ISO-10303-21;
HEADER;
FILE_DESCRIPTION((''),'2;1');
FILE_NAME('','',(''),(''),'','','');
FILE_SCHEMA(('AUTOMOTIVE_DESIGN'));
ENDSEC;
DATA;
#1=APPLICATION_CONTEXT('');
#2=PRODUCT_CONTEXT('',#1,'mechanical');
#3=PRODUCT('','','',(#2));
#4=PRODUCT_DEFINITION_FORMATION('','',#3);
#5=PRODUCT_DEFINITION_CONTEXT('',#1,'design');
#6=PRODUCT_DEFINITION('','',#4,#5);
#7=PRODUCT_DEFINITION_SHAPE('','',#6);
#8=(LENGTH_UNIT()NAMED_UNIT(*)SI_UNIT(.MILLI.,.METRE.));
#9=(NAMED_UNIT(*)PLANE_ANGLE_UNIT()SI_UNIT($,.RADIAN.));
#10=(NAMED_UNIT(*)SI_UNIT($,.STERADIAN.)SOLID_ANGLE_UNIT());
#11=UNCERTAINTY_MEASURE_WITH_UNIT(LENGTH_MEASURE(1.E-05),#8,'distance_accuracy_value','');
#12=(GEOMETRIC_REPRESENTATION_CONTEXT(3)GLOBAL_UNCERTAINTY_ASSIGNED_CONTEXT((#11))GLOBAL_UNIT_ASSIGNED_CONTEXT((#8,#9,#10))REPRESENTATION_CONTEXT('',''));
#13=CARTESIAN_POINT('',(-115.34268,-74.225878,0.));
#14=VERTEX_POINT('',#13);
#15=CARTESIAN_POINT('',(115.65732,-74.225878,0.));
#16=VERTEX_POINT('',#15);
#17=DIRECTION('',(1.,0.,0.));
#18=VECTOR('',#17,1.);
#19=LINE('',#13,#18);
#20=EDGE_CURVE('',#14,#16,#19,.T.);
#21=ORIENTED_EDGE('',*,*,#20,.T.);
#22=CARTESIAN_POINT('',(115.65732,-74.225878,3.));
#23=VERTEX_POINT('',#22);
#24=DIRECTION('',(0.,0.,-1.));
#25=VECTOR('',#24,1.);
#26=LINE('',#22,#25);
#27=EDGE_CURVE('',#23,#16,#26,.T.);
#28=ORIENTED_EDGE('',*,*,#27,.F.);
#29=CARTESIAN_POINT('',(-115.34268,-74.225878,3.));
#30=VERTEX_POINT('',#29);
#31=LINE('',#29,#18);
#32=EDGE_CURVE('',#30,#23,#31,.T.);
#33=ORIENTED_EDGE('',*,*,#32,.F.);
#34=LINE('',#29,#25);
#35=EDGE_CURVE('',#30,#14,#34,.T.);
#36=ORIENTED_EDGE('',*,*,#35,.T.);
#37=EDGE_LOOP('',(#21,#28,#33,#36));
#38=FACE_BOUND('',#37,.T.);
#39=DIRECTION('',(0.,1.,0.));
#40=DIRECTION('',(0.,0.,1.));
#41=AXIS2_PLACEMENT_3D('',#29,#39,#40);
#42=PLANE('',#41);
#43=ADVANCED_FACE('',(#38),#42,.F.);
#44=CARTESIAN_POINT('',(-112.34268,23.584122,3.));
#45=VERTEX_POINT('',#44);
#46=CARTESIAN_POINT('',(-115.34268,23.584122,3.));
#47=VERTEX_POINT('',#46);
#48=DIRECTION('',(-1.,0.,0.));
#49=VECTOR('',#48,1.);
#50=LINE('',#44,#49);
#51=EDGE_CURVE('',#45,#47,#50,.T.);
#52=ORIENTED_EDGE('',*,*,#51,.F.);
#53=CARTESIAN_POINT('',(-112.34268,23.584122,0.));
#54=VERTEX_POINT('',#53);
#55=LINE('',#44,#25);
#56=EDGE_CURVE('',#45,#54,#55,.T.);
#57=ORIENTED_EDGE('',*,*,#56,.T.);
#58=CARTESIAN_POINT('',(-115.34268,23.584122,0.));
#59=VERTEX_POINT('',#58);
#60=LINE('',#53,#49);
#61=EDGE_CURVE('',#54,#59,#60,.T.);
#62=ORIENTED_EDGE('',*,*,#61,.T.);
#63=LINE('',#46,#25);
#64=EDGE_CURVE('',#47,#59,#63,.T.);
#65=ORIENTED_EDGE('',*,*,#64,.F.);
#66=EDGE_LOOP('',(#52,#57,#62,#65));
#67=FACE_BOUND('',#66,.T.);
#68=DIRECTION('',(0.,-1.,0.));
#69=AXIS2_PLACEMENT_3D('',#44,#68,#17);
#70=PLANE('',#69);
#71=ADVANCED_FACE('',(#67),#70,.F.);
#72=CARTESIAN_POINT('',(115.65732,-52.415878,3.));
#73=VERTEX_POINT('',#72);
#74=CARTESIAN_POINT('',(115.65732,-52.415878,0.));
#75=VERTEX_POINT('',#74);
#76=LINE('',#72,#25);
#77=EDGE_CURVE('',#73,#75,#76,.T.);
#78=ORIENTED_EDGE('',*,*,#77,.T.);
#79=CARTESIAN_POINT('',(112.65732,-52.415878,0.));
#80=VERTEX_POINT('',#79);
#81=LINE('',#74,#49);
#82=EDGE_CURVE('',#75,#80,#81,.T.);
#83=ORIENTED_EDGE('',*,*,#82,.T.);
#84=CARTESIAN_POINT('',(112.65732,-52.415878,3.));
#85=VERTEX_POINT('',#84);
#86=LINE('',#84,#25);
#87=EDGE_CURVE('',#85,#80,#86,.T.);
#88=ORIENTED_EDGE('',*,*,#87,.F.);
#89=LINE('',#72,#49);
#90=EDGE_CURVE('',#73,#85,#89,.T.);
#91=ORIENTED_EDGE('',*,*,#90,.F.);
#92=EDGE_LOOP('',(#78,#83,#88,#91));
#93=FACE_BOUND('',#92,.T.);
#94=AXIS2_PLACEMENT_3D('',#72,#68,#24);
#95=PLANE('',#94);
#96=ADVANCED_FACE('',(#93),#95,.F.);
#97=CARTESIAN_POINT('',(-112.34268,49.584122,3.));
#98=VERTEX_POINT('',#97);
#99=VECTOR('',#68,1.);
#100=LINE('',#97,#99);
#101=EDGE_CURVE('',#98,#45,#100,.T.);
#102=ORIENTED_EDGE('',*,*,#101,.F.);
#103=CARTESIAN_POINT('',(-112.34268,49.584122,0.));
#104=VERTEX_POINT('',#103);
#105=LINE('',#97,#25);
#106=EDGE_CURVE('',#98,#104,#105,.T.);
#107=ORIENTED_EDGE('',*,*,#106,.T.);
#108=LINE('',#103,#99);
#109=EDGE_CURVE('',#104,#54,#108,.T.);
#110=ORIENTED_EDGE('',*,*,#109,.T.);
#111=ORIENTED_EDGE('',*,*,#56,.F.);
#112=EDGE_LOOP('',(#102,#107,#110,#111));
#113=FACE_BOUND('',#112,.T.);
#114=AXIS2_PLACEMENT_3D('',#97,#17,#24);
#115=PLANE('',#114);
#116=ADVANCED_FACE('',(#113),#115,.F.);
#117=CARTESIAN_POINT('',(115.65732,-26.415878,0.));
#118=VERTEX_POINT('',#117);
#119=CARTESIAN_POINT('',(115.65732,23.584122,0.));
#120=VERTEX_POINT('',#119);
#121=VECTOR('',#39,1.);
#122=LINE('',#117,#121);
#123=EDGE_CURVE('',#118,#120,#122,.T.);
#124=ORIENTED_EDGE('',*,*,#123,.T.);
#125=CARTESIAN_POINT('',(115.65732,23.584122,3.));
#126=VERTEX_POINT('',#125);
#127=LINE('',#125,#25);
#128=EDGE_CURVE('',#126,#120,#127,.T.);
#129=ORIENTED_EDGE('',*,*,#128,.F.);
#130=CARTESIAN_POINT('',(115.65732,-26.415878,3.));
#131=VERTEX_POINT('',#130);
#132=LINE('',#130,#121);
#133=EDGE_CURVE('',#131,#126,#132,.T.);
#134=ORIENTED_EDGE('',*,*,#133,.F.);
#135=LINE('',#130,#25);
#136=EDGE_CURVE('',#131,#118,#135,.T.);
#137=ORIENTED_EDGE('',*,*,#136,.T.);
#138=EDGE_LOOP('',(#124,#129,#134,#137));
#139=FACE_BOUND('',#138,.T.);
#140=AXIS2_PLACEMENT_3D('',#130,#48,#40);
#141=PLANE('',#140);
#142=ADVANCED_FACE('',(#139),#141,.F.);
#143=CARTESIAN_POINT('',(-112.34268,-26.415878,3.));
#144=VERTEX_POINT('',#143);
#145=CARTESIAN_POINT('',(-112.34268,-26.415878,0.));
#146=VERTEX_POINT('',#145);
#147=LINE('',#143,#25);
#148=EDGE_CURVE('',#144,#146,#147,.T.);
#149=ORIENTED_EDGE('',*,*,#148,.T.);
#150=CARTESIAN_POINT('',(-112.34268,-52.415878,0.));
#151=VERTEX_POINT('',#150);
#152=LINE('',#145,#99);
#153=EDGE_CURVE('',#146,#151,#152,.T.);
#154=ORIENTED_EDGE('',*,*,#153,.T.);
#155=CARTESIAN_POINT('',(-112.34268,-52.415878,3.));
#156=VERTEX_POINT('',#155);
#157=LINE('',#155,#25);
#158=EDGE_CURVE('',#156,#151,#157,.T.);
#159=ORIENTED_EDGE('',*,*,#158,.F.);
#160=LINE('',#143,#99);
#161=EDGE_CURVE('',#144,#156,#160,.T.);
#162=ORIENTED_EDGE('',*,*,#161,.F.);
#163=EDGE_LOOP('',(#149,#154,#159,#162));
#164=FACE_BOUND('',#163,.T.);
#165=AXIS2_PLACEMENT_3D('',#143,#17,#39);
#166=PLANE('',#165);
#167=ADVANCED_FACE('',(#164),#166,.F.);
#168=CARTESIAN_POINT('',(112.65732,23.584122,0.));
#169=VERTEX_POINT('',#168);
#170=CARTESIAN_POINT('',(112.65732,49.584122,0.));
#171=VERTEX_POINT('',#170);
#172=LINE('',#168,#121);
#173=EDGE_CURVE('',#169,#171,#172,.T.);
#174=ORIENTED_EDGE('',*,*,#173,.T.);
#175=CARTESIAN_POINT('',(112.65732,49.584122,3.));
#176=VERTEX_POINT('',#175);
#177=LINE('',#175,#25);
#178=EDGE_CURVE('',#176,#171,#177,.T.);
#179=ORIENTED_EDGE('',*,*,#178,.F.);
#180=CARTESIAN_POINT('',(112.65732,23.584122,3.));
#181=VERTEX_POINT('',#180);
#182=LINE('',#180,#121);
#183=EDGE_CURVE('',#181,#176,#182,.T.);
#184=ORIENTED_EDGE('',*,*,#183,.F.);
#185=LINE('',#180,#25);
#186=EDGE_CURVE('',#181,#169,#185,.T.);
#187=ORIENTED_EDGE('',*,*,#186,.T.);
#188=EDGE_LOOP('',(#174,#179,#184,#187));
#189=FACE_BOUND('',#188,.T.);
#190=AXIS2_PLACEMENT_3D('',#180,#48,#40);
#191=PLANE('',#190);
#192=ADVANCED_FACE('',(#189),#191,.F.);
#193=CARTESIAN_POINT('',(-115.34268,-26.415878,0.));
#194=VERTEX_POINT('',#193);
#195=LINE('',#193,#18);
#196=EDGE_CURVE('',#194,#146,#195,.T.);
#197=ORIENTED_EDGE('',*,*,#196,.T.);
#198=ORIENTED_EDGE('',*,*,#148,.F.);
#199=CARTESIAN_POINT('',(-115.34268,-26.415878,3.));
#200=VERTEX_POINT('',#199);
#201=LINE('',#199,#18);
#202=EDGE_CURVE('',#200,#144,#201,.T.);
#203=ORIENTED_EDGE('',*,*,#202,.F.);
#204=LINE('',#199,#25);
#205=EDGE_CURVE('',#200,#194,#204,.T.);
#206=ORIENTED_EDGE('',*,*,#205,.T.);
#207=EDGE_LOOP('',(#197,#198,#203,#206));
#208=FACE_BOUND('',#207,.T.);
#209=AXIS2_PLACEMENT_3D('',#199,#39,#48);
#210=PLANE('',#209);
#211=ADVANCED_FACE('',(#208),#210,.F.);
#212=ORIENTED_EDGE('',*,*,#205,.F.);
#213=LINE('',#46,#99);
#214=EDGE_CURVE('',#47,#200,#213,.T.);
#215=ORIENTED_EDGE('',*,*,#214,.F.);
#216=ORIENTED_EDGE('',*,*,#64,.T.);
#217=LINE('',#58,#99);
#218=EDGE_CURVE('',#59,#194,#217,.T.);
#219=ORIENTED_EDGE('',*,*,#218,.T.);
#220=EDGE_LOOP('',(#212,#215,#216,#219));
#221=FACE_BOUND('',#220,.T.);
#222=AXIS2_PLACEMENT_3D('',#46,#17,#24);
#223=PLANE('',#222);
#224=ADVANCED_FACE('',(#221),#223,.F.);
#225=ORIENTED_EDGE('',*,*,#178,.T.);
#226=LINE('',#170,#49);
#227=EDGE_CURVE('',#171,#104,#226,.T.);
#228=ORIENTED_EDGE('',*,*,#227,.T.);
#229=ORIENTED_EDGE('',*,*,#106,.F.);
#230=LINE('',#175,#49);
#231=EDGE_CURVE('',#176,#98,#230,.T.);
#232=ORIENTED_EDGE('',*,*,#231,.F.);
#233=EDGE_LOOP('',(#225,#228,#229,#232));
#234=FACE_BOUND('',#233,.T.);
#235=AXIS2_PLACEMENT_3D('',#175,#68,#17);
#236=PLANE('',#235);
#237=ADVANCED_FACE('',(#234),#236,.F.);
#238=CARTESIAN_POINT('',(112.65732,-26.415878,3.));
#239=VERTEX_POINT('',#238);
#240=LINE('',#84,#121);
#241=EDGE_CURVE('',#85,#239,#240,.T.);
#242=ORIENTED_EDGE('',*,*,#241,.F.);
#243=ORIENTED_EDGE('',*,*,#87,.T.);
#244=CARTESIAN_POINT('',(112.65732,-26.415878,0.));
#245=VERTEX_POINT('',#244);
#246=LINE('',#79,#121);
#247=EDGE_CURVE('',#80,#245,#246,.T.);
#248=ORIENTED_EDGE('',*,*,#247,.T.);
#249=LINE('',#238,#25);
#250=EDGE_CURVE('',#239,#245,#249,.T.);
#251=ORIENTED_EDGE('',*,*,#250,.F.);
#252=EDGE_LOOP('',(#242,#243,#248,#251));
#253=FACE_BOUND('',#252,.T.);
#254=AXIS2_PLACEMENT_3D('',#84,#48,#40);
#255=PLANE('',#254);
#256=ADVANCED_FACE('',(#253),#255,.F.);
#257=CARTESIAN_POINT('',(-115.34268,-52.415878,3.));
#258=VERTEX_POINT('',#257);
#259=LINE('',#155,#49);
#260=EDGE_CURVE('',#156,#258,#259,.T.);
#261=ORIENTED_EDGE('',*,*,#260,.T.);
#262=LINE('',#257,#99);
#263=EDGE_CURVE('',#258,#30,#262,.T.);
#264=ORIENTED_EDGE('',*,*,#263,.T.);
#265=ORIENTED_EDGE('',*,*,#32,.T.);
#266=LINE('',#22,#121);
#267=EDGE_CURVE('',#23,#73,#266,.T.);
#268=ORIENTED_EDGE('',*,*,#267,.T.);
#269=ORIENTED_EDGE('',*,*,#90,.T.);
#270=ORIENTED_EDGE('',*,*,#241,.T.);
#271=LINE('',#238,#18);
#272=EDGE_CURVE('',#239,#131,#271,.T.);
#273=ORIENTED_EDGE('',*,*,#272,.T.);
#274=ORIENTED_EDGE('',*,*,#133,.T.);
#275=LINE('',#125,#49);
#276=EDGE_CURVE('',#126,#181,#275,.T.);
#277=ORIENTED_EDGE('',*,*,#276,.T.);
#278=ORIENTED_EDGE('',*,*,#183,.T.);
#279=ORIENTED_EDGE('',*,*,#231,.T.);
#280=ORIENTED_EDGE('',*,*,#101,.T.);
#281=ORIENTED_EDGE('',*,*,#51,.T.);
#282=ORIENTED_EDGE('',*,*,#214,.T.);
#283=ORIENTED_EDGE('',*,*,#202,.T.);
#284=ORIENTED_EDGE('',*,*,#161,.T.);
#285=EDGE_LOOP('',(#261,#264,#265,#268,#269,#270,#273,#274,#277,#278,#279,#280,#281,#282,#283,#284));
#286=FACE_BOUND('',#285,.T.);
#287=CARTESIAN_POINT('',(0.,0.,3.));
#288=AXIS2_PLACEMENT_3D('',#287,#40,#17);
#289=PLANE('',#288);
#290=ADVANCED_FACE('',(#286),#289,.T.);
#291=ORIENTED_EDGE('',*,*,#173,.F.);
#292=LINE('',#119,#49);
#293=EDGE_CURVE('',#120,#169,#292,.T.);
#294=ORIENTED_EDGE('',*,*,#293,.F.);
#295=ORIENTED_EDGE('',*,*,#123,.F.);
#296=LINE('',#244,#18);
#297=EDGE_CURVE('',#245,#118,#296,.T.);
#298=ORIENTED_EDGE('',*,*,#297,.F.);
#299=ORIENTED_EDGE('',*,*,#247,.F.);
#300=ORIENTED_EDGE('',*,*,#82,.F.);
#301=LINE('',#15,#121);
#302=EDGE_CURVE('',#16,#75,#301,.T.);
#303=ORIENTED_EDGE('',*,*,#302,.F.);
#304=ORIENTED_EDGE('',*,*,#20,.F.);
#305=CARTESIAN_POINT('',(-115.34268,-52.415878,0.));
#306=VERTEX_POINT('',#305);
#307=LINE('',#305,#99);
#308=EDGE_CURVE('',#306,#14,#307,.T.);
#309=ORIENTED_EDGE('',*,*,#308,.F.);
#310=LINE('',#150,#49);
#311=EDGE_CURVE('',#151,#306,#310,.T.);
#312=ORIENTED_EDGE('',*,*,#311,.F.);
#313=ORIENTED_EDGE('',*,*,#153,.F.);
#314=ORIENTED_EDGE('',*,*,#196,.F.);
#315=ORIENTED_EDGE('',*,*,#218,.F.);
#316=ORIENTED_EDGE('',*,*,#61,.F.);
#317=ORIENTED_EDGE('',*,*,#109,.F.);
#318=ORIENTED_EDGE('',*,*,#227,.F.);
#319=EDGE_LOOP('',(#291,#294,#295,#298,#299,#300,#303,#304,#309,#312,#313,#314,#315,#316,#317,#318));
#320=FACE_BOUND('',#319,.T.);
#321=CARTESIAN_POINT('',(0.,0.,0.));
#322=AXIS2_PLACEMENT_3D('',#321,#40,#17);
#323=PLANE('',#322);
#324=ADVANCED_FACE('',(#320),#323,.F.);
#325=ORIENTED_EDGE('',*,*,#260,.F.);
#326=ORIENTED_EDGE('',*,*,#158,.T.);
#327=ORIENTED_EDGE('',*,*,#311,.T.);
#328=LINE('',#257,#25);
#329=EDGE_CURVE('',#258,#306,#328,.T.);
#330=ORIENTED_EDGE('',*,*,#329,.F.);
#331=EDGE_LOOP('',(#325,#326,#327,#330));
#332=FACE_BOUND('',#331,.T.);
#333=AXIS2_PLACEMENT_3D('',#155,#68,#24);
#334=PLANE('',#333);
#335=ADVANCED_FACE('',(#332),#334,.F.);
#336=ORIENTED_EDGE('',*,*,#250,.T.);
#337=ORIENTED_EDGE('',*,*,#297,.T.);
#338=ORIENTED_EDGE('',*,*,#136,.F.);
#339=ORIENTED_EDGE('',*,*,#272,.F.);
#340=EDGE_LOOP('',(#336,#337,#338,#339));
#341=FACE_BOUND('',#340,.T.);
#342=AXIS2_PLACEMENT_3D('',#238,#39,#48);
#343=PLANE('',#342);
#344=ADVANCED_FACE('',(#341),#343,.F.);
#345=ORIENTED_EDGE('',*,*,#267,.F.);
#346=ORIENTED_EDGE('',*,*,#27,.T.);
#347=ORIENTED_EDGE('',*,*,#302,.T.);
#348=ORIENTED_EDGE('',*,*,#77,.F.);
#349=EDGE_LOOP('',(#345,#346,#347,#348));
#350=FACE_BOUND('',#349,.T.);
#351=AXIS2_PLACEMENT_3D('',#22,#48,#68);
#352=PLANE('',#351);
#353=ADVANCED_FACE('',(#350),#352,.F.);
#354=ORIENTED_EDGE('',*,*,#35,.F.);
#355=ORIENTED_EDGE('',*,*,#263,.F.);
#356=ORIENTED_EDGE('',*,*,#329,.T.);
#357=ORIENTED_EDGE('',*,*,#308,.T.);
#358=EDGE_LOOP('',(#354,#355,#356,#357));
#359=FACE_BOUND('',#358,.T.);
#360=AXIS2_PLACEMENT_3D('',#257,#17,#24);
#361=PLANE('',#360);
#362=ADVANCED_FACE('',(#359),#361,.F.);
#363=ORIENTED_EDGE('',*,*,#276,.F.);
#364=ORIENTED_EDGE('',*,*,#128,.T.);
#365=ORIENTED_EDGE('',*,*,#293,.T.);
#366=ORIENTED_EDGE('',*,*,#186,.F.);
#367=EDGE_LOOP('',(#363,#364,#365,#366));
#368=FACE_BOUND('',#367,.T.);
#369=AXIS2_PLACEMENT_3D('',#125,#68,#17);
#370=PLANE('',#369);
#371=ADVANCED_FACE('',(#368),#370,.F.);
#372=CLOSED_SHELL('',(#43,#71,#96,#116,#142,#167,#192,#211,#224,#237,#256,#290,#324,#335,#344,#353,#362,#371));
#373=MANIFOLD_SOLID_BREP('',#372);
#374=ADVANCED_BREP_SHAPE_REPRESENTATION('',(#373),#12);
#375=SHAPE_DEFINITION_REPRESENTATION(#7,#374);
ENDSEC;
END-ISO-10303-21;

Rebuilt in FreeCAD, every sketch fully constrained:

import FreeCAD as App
import Part
import Sketcher

V = App.Vector


def add_polygon(sketch, points):
    """Adds a closed chain of lines whose ends are joined by coincident constraints."""
    first, n = sketch.GeometryCount, len(points)
    for a, b in zip(points, points[1:] + points[:1]):
        sketch.addGeometry(Part.LineSegment(App.Vector(*a, 0), App.Vector(*b, 0)), False)
    for i in range(n):
        sketch.addConstraint(Sketcher.Constraint("Coincident", first + i, 2, first + (i + 1) % n, 1))

doc = App.newDocument("Part")
body = doc.addObject("PartDesign::Body", "Body")

# Sketch on XY plane
sketch1 = doc.addObject("Sketcher::SketchObject", "Sketch")
body.addObject(sketch1)
sketch1.AttachmentSupport = (doc.XY_Plane, [""])
sketch1.MapMode = "FlatFace"
add_polygon(sketch1, [(-112.3, 49.6), (-112.3, 23.6), (-115.3, 23.6), (-115.3, -26.4), (-112.3, -26.4), (-112.3, -52.4), (-115.3, -52.4), (-115.3, -74.2), (115.7, -74.2), (115.7, -52.4), (112.7, -52.4), (112.7, -26.4), (115.7, -26.4), (115.7, 23.6), (112.7, 23.6), (112.7, 49.6)])  # lines 0-15
sketch1.addConstraint([
    Sketcher.Constraint("Vertical", 0),
    Sketcher.Constraint("Horizontal", 1),
    Sketcher.Constraint("Vertical", 2),
    Sketcher.Constraint("Horizontal", 3),
    Sketcher.Constraint("Vertical", 4),
    Sketcher.Constraint("Horizontal", 5),
    Sketcher.Constraint("Vertical", 6),
    Sketcher.Constraint("Horizontal", 7),
    Sketcher.Constraint("Vertical", 8),
    Sketcher.Constraint("Horizontal", 9),
    Sketcher.Constraint("Vertical", 10),
    Sketcher.Constraint("Horizontal", 11),
    Sketcher.Constraint("Vertical", 12),
    Sketcher.Constraint("Horizontal", 13),
    Sketcher.Constraint("Vertical", 14),
    Sketcher.Constraint("Horizontal", 15),
    Sketcher.Constraint("Horizontal", 5, 2, 8, 2),
    Sketcher.Constraint("Horizontal", 3, 2, 10, 2),
    Sketcher.Constraint("Horizontal", 1, 2, 12, 2),
    Sketcher.Constraint("Vertical", 0, 2, 3, 2),
    Sketcher.Constraint("Vertical", 2, 2, 5, 2),
    Sketcher.Constraint("Vertical", 8, 2, 11, 2),
    Sketcher.Constraint("Vertical", 10, 2, 13, 2),
    Sketcher.Constraint("Equal", 5, 9),
    Sketcher.Constraint("Equal", 0, 4),
    Sketcher.Constraint("DistanceX", 1, 2, 1, 1, 3.0),
    Sketcher.Constraint("DistanceX", 7, 1, 7, 2, 231.0),
    Sketcher.Constraint("DistanceY", 0, 2, 0, 1, 26.0),
    Sketcher.Constraint("DistanceY", 2, 2, 2, 1, 50.0),
    Sketcher.Constraint("DistanceY", 6, 2, 6, 1, 21.81),
    Sketcher.Constraint("DistanceX", 0, 2, -1, 1, 112.34268),
    Sketcher.Constraint("DistanceY", -1, 1, 0, 2, 23.584122),
])
pad1 = doc.addObject("PartDesign::Pad", "Pad")
body.addObject(pad1)
pad1.Profile = sketch1
pad1.Length = 3

doc.recompute()
